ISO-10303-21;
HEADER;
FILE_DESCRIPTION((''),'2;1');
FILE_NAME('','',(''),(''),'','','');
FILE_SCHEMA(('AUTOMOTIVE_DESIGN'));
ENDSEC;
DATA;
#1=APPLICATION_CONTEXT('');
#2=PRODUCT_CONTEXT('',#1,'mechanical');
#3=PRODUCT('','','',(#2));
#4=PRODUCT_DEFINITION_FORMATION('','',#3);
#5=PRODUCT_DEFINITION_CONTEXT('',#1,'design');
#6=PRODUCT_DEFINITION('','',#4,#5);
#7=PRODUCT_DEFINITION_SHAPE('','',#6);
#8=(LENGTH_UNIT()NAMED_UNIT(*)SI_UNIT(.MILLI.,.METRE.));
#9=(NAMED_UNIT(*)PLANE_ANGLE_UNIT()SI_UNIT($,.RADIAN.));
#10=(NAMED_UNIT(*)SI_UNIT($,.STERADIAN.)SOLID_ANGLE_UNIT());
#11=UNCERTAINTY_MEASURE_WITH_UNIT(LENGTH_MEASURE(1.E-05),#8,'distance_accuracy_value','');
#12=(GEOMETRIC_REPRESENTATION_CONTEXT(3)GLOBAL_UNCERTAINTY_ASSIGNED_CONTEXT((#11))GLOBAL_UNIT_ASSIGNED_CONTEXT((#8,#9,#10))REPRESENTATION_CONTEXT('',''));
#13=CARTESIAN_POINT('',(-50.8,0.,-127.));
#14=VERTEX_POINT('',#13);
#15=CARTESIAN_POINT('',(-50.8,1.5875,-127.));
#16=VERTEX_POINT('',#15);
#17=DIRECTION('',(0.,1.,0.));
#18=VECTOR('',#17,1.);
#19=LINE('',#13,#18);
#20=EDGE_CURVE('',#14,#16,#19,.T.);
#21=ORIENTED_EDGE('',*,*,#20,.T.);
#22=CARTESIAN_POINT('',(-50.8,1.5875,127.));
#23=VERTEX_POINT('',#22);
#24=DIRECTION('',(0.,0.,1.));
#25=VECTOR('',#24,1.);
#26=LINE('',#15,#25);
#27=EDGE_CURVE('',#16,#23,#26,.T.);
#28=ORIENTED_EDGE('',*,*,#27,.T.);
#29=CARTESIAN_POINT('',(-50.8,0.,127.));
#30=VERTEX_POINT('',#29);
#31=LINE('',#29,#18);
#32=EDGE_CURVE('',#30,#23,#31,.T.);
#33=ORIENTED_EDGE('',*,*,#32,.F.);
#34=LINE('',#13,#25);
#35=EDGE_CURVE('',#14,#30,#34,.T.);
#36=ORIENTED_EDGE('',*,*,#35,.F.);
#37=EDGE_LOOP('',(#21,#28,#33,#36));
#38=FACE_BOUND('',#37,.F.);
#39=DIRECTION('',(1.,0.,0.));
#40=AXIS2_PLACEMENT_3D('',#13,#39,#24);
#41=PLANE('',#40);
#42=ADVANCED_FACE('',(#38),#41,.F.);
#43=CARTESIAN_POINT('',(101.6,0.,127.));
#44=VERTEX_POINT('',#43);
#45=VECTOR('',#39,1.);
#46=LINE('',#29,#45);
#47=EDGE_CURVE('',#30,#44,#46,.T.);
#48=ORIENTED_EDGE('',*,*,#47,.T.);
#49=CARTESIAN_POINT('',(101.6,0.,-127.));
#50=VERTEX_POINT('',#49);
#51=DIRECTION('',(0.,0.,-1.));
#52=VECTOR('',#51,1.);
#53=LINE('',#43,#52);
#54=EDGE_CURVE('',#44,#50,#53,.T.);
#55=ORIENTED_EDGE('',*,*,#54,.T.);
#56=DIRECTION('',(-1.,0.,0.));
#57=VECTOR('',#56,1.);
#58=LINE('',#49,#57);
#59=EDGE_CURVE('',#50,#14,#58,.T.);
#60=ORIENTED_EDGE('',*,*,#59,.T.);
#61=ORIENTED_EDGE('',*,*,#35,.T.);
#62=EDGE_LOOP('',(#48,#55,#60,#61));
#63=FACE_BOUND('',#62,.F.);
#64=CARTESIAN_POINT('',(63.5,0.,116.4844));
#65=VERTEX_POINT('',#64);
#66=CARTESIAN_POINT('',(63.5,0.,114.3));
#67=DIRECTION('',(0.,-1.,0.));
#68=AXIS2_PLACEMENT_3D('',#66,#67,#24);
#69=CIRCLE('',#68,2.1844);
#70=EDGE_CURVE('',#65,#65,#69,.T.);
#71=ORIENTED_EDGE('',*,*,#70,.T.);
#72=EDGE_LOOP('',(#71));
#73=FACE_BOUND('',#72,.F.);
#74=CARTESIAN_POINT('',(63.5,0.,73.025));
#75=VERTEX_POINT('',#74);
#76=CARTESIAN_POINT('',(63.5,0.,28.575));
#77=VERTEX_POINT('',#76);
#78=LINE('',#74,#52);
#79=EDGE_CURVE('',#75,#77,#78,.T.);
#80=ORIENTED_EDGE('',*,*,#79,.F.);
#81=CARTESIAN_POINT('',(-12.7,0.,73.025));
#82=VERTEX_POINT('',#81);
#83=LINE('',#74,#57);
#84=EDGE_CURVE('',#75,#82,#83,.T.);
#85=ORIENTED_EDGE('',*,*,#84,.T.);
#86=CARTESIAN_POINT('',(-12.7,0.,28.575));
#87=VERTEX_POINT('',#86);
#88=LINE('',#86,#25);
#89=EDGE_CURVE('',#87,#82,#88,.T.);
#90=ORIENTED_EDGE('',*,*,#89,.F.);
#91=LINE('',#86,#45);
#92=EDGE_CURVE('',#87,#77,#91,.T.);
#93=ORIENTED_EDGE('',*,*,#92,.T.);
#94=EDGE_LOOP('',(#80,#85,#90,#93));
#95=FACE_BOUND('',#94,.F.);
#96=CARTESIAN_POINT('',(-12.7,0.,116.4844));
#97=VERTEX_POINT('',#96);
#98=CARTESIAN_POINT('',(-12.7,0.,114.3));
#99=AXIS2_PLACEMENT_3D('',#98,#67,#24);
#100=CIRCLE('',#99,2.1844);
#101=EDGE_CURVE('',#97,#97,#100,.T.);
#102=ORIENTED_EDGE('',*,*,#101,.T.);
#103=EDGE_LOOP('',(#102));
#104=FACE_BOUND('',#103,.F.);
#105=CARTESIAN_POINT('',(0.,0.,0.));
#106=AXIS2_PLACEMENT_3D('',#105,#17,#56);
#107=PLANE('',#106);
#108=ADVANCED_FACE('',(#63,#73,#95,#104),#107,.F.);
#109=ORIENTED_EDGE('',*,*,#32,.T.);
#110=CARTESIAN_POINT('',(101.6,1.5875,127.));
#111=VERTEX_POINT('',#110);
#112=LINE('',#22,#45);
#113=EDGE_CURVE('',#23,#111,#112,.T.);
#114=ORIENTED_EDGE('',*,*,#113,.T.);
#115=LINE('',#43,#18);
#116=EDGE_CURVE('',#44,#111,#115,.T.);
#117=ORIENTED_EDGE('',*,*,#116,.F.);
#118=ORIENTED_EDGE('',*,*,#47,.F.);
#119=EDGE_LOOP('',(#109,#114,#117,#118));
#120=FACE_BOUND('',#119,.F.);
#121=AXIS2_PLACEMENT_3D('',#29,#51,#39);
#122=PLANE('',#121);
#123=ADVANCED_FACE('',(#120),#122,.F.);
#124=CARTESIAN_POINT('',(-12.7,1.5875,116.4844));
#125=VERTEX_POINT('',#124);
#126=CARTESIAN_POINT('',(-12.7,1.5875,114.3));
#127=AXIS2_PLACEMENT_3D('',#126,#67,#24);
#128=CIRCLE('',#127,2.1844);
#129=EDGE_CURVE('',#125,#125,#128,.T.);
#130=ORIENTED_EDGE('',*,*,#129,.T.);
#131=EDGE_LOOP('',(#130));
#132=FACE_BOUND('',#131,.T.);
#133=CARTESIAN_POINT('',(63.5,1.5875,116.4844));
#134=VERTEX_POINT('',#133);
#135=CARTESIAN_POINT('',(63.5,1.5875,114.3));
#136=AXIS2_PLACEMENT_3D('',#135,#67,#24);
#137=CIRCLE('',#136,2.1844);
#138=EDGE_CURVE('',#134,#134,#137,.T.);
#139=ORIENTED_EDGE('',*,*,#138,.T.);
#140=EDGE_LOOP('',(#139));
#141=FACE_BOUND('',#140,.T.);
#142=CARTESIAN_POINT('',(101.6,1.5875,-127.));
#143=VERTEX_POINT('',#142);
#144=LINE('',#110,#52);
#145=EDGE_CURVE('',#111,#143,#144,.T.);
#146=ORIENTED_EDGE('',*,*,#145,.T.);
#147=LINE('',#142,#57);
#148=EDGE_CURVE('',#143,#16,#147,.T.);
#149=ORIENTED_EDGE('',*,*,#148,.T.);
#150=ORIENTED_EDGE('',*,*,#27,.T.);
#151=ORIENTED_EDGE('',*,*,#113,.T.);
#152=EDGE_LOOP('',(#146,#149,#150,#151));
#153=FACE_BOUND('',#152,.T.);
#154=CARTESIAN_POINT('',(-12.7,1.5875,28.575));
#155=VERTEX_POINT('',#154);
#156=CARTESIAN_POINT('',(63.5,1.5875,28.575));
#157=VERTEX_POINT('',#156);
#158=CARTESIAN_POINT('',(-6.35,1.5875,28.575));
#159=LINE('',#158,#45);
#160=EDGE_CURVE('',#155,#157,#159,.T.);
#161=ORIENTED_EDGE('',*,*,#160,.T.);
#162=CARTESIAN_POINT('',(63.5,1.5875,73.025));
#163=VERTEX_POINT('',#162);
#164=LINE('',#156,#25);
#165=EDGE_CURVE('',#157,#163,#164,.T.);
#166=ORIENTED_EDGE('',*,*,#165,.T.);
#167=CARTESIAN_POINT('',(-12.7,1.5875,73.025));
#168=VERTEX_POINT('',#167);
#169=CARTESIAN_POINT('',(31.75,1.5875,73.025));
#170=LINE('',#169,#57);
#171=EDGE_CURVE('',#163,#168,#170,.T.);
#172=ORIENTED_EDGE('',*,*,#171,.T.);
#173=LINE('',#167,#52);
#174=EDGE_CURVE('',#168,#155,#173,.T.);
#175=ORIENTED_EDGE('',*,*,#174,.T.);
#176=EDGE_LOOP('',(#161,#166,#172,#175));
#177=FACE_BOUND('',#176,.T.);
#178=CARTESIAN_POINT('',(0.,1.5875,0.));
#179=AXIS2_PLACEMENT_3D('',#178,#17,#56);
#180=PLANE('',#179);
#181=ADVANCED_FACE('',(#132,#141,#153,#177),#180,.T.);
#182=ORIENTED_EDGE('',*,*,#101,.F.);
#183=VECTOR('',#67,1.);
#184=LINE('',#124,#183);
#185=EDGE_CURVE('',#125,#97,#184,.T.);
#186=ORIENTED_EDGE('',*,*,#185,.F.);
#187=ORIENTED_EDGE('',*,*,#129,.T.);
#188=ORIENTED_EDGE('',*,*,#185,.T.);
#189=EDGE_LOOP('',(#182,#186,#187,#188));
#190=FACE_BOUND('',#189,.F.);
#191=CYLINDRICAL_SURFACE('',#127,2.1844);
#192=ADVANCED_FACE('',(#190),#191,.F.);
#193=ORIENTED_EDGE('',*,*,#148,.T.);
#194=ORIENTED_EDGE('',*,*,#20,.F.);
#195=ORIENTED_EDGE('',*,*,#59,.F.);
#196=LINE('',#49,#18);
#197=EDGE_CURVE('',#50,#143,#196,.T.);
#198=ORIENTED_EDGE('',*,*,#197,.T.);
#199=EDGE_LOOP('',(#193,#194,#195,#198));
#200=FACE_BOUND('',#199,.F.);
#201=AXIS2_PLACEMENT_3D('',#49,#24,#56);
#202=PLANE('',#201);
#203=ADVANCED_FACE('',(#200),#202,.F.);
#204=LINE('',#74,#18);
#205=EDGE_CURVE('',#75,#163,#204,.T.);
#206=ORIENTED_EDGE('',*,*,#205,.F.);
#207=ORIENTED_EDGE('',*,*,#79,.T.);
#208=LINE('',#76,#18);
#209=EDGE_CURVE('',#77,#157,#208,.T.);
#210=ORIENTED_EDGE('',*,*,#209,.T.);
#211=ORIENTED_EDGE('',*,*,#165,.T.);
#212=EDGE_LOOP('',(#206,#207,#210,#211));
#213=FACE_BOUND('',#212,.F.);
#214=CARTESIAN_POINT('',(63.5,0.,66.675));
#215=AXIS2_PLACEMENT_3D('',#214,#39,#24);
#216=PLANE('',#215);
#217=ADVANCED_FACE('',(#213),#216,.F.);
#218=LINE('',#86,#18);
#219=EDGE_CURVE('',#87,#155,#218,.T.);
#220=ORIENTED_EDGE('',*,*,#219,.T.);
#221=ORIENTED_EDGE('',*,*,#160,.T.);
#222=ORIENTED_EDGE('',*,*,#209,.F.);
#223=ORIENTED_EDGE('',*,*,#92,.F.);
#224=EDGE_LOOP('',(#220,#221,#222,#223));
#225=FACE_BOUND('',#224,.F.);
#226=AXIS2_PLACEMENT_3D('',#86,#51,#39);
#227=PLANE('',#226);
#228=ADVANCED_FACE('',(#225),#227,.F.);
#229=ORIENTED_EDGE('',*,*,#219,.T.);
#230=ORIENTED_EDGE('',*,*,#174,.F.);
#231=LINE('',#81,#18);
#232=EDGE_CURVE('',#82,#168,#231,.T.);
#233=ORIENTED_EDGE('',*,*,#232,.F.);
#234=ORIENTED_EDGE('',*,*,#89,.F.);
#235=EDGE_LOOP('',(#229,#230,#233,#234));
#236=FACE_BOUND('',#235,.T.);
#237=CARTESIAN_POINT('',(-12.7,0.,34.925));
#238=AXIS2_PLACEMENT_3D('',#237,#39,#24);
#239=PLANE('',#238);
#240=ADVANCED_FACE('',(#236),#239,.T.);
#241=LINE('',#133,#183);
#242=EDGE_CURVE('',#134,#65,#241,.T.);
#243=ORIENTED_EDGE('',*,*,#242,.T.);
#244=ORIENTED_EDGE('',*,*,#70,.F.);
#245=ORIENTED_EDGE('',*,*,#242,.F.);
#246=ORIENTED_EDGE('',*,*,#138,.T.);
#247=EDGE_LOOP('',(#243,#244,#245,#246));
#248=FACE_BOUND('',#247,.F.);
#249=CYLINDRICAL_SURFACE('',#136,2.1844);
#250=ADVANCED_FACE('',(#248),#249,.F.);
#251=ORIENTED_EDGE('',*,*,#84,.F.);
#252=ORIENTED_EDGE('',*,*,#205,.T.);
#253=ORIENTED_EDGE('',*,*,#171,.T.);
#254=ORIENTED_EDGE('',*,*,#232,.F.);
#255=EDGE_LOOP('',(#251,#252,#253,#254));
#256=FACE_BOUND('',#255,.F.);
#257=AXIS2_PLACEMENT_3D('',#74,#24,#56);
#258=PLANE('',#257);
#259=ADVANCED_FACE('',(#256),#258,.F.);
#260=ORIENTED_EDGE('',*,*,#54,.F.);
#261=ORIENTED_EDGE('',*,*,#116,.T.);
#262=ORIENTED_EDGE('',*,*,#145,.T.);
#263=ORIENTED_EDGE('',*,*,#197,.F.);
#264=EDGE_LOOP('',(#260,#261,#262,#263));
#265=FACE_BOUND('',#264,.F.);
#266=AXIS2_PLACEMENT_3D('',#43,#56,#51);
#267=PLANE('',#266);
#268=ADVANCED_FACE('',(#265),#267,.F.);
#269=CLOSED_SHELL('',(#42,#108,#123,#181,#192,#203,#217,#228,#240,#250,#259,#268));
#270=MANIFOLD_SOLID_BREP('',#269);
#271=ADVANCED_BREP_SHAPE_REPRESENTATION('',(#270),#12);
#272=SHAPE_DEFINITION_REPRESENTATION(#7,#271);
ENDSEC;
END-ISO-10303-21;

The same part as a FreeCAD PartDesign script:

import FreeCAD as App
import Part
import Sketcher
from FreeCAD import Vector
Q = App.Units.Quantity


def add_polygon(sketch, points):
    """Adds a closed chain of lines whose ends are joined by coincident constraints."""
    first, n = sketch.GeometryCount, len(points)
    for a, b in zip(points, points[1:] + points[:1]):
        sketch.addGeometry(Part.LineSegment(App.Vector(*a, 0), App.Vector(*b, 0)), False)
    for i in range(n):
        sketch.addConstraint(Sketcher.Constraint("Coincident", first + i, 2, first + (i + 1) % n, 1))

doc = App.newDocument("Part")
body = doc.addObject("PartDesign::Body", "Body")

sketch1 = body.newObject("Sketcher::SketchObject", "Sketch")
sketch1.AttachmentSupport = (doc.getObject("XZ_Plane"), [""])
sketch1.MapMode = "FlatFace"
add_polygon(sketch1, [(102, 127), (102, -127), (-51, -127), (-51, 127)])
sketch1.addConstraint([
    Sketcher.Constraint("Vertical", 0),
    Sketcher.Constraint("Horizontal", 1),
    Sketcher.Constraint("Vertical", 2),
    Sketcher.Constraint("Horizontal", 3),
    Sketcher.Constraint("DistanceX", 1, 2, 1, 1, Q("6 in")),
    Sketcher.Constraint("DistanceY", 0, 2, 0, 1, Q("10 in")),
    Sketcher.Constraint("DistanceX", -1, 1, 0, 2, Q("4 in")),
    Sketcher.Constraint("DistanceY", 0, 2, -1, 1, Q("5 in")),
])
pad1 = body.newObject("PartDesign::Pad", "Pad")
pad1.Profile = sketch1
pad1.Length = Q("0.0625 in")
pad1.Reversed = True

sketch2 = body.newObject("Sketcher::SketchObject", "Sketch001")
sketch2.AttachmentSupport = (doc.getObject("XZ_Plane"), [""])
sketch2.MapMode = "FlatFace"
sketch2.AttachmentOffset = App.Placement(Vector(0, 0, -0.0625 * 25.4), App.Rotation())
sketch2.addGeometry([
    Part.Circle(Vector(63.5, 114.3, 0), Vector(0, 0, 1), 2.2),
    Part.Circle(Vector(-12.7, 114.3, 0), Vector(0, 0, 1), 2.2),
], False)
sketch2.addConstraint([
    Sketcher.Constraint("Equal", 0, 1),
    Sketcher.Constraint("Horizontal", 0, 3, 1, 3),
    Sketcher.Constraint("Diameter", 0, Q("0.172 in")),
    Sketcher.Constraint("DistanceX", 1, 3, 0, 3, Q("3 in")),
    Sketcher.Constraint("DistanceX", -1, 1, 0, 3, Q("2.5 in")),
    Sketcher.Constraint("DistanceY", -1, 1, 0, 3, Q("4.5 in")),
])
doc.recompute()
hole = body.newObject("PartDesign::Hole", "Hole")
hole.Profile = sketch2
hole.ThreadType = "None"
hole.Diameter = Q("0.172 in")
hole.DepthType = "ThroughAll"
hole.Reversed = True

sketch3 = body.newObject("Sketcher::SketchObject", "Sketch002")
sketch3.AttachmentSupport = (doc.getObject("XZ_Plane"), [""])
sketch3.MapMode = "FlatFace"
add_polygon(sketch3, [(-13, 73), (-13, 29), (64, 29), (64, 73)])
sketch3.addConstraint([
    Sketcher.Constraint("Vertical", 0),
    Sketcher.Constraint("Horizontal", 1),
    Sketcher.Constraint("Vertical", 2),
    Sketcher.Constraint("Horizontal", 3),
    Sketcher.Constraint("DistanceX", 1, 1, 1, 2, Q("3 in")),
    Sketcher.Constraint("DistanceY", 0, 2, 0, 1, Q("1.75 in")),
    Sketcher.Constraint("DistanceX", 0, 2, -1, 1, Q("0.5 in")),
    Sketcher.Constraint("DistanceY", -1, 1, 0, 2, Q("1.125 in")),
])
pocket1 = body.newObject("PartDesign::Pocket", "Pocket")
pocket1.Profile = sketch3
pocket1.Type = "UpToFirst"

doc.recompute()
